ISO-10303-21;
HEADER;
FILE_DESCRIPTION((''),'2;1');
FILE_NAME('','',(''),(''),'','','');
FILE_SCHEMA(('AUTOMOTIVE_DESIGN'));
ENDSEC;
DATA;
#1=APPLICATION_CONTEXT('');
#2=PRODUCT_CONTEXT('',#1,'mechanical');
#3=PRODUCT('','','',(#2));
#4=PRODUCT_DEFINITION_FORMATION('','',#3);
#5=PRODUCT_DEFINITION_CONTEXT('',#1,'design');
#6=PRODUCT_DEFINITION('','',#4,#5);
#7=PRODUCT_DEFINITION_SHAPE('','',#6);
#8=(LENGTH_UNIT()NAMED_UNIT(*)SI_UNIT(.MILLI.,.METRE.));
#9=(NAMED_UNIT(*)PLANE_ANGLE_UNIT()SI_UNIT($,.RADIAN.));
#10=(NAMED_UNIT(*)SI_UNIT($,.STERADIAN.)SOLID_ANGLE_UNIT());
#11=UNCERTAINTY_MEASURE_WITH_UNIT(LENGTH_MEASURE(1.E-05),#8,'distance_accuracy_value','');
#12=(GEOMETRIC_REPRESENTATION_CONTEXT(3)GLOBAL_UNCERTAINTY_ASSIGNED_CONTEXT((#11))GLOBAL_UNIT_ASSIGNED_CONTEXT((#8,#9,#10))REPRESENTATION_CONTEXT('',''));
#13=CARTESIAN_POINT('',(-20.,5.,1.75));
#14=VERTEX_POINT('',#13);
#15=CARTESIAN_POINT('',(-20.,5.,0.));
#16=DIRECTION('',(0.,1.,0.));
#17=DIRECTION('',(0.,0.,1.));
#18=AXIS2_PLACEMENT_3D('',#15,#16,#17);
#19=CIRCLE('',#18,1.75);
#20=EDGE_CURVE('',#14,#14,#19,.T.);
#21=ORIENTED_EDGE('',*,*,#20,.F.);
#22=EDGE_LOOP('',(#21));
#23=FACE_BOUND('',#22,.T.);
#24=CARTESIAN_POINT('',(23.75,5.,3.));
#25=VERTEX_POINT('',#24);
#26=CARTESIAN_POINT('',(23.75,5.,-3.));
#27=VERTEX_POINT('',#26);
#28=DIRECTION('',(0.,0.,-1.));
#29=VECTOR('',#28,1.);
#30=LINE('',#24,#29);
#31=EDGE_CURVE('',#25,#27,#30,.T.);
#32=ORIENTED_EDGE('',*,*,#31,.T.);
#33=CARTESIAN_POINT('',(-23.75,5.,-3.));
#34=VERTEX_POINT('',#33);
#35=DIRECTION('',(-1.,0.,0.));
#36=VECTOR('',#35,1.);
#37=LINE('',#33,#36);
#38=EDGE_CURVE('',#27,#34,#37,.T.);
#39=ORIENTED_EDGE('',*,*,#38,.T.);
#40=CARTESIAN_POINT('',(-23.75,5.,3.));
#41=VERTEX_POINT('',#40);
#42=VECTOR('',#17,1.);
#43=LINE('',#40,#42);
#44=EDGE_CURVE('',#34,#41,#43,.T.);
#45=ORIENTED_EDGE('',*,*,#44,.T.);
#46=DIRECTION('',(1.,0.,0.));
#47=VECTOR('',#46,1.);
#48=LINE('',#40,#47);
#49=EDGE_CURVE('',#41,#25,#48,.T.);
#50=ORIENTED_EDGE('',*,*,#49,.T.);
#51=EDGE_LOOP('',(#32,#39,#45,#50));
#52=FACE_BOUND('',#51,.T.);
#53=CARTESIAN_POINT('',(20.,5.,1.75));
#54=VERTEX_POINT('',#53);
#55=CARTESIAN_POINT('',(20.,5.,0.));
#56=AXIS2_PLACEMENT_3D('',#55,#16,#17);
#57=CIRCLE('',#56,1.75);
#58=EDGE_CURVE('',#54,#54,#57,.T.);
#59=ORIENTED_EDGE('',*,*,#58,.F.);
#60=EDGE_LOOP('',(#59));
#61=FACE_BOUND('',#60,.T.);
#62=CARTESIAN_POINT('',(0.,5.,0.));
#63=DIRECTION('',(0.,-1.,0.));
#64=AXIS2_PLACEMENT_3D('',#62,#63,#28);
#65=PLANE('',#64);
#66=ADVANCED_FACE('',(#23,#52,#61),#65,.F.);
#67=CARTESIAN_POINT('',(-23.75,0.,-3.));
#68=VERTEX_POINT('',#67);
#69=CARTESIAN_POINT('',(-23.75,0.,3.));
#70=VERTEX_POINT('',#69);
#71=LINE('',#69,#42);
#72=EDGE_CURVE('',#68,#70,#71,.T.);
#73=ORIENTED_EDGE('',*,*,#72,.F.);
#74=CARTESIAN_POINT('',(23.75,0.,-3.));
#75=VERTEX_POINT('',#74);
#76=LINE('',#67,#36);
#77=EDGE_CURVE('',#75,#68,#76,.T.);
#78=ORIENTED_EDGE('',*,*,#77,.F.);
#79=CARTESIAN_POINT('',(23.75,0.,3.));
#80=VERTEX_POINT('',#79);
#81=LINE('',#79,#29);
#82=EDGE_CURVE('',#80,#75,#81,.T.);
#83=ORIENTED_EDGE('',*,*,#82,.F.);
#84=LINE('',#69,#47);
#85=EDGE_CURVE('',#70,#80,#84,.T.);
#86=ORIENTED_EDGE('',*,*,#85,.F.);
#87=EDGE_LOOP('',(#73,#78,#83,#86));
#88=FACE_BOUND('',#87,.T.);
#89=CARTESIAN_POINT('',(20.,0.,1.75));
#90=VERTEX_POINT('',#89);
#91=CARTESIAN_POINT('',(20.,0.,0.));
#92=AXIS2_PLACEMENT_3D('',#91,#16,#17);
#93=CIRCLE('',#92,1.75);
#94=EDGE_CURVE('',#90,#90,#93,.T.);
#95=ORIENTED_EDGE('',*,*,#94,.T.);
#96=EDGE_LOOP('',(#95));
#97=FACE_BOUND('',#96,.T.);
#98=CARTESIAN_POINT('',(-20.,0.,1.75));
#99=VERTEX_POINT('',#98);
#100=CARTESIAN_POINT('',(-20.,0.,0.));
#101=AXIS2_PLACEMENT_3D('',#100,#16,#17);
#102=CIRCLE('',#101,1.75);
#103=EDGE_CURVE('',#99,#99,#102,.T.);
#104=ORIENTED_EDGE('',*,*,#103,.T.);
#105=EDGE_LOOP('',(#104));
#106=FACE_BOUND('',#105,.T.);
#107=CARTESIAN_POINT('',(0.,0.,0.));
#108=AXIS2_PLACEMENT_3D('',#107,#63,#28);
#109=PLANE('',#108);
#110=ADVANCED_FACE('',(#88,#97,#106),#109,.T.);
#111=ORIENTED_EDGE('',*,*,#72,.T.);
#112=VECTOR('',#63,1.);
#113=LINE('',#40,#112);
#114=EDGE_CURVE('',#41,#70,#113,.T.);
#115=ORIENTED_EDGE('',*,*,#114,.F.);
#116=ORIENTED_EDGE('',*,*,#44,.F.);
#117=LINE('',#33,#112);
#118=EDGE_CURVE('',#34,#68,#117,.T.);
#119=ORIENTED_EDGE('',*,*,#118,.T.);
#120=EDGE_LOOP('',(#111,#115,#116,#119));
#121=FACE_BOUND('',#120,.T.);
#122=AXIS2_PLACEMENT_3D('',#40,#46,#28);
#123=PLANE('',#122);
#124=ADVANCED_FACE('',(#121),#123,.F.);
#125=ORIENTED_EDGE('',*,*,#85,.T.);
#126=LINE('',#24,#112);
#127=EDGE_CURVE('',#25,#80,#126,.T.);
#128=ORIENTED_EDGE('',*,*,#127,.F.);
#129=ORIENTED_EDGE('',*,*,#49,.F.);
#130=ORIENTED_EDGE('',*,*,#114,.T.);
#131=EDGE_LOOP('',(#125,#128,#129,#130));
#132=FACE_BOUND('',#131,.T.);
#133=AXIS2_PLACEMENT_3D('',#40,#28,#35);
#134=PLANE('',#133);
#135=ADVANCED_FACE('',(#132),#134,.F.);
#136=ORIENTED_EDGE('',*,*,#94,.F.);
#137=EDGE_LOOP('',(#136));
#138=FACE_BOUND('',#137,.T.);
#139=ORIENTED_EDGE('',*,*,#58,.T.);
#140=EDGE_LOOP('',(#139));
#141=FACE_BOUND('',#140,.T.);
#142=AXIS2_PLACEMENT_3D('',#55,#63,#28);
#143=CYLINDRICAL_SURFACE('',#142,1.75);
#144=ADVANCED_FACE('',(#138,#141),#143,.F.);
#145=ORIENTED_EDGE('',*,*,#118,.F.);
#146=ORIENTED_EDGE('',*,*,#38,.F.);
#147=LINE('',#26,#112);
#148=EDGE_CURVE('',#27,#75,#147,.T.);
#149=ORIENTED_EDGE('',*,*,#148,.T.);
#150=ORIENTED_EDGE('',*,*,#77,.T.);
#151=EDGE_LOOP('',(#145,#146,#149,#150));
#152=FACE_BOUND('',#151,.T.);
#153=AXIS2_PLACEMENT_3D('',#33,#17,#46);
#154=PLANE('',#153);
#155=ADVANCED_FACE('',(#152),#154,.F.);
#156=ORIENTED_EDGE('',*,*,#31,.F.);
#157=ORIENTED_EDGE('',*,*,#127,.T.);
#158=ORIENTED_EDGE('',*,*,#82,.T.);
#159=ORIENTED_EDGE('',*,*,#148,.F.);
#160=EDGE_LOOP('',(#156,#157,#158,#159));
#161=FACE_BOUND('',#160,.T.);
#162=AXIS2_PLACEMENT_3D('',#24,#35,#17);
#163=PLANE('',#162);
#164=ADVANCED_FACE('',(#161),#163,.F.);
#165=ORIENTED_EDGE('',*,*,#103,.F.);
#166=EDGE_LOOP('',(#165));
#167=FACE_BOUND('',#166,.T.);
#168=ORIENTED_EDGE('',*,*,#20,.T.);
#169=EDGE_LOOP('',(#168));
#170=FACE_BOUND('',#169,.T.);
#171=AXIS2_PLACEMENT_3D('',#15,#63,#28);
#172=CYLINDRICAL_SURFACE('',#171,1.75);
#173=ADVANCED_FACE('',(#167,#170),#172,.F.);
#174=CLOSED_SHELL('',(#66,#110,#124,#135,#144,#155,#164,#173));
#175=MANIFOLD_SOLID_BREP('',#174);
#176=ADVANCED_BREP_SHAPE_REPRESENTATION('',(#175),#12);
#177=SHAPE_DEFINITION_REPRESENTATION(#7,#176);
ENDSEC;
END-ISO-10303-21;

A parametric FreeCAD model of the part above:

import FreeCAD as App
import Part
import Sketcher
Q = App.Units.Quantity

doc = App.newDocument("Part")
body = doc.addObject("PartDesign::Body", "Body")

sketch1 = body.newObject("Sketcher::SketchObject", "Sketch")
sketch1.AttachmentSupport = (doc.getObject("XZ_Plane"), [""])
sketch1.MapMode = "FlatFace"
sketch1.addGeometry(Part.LineSegment(App.Vector(-23.75, -3, 0), App.Vector(-23.75, 3, 0)), False)
sketch1.addGeometry(Part.LineSegment(App.Vector(-23.75, 3, 0), App.Vector(23.75, 3, 0)), False)
sketch1.addGeometry(Part.LineSegment(App.Vector(23.75, 3, 0), App.Vector(23.75, -3, 0)), False)
sketch1.addGeometry(Part.LineSegment(App.Vector(23.75, -3, 0), App.Vector(-23.75, -3, 0)), False)
sketch1.addGeometry(Part.Circle(App.Vector(-20, 0, 0), App.Vector(0, 0, 1), 1.75), False)
sketch1.addGeometry(Part.Circle(App.Vector(20, 0, 0), App.Vector(0, 0, 1), 1.75), False)
sketch1.addConstraint(Sketcher.Constraint("Coincident", 0, 2, 1, 1))
sketch1.addConstraint(Sketcher.Constraint("Coincident", 1, 2, 2, 1))
sketch1.addConstraint(Sketcher.Constraint("Coincident", 2, 2, 3, 1))
sketch1.addConstraint(Sketcher.Constraint("Coincident", 3, 2, 0, 1))
sketch1.addConstraint(Sketcher.Constraint("Vertical", 0))
sketch1.addConstraint(Sketcher.Constraint("Horizontal", 1))
sketch1.addConstraint(Sketcher.Constraint("Vertical", 2))
sketch1.addConstraint(Sketcher.Constraint("Horizontal", 3))
sketch1.addConstraint(Sketcher.Constraint("Equal", 4, 5))
sketch1.addConstraint(Sketcher.Constraint("Symmetric", 4, 3, 5, 3, -1, 1))
sketch1.addConstraint(Sketcher.Constraint("Symmetric", 0, 2, 2, 2, -1, 1))
sketch1.addConstraint(Sketcher.Constraint("PointOnObject", 4, 3, -1))
sketch1.addConstraint(Sketcher.Constraint("Diameter", 4, Q("3.5 mm")))
sketch1.addConstraint(Sketcher.Constraint("DistanceY", 0, 1, 0, 2, Q("6 mm")))
sketch1.addConstraint(Sketcher.Constraint("DistanceX", 1, 1, 1, 2, Q("47.5 mm")))
sketch1.addConstraint(Sketcher.Constraint("DistanceX", 4, 3, -1, 1, Q("20 mm")))
pad1 = body.newObject("PartDesign::Pad", "Pad")
pad1.Profile = sketch1
pad1.Length = 5
pad1.Reversed = True

doc.recompute()
